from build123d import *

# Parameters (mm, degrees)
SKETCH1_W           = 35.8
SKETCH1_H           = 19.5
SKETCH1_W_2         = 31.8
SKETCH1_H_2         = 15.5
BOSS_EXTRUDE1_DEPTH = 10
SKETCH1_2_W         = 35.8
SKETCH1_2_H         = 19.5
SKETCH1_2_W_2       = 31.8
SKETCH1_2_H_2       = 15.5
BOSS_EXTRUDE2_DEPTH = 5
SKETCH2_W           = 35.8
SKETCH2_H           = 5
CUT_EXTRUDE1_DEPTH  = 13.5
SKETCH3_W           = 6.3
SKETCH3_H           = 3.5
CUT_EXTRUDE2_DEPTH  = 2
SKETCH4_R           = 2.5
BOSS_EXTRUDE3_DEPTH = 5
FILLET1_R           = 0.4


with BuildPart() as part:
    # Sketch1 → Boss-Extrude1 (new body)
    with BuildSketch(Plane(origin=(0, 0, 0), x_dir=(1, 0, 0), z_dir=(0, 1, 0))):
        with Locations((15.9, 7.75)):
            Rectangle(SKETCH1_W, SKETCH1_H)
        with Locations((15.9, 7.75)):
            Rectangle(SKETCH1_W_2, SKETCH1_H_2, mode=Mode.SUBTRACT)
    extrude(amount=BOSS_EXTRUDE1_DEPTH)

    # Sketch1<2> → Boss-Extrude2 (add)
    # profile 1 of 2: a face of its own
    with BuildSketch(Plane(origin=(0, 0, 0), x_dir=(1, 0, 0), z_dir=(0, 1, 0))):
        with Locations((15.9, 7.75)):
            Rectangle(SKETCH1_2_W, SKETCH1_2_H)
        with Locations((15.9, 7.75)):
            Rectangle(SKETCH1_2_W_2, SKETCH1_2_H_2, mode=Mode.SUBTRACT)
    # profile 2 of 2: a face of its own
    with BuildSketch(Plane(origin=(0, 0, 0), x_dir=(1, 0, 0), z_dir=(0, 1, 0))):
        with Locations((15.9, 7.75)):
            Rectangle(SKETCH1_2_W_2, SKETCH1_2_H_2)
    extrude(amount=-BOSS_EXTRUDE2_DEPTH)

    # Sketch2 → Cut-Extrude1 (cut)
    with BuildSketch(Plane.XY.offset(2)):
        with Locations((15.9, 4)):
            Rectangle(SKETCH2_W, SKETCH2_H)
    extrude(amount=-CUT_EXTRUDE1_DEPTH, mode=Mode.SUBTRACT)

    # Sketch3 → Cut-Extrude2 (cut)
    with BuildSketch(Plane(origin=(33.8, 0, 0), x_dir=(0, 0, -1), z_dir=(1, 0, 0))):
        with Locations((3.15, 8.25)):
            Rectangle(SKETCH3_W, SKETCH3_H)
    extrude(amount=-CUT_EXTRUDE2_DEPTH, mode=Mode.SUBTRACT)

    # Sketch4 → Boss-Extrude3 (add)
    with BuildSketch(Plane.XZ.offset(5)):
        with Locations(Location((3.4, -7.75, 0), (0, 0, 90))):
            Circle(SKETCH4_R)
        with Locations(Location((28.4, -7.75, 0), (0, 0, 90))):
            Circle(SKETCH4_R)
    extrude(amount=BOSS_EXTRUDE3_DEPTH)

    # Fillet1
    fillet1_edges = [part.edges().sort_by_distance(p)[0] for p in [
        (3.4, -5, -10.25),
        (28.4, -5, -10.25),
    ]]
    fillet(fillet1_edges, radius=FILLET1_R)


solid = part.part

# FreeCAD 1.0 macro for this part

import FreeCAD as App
import Part
import Sketcher

V = App.Vector


def edges_at(feature, points):
    """Names of the edges that pass closest to the given points."""
    edges = feature.Shape.Edges
    near = lambda p: min(range(len(edges)), key=lambda i: edges[i].distToShape(Part.Vertex(*p))[0])
    return sorted({f"Edge{near(p) + 1}" for p in points})

doc = App.newDocument("Part")
body = doc.addObject("PartDesign::Body", "Body")

# Sketch on XZ plane
sketch1 = body.newObject("Sketcher::SketchObject", "Sketch")
sketch1.AttachmentSupport = (doc.getObject("XZ_Plane"), [""])
sketch1.MapMode = "FlatFace"
sketch1.addGeometry(Part.LineSegment(V(-2, -17.5, 0), V(-2, 2, 0)), False)
sketch1.addGeometry(Part.LineSegment(V(-2, 2, 0), V(33.8, 2, 0)), False)
sketch1.addGeometry(Part.LineSegment(V(33.8, 2, 0), V(33.8, -17.5, 0)), False)
sketch1.addGeometry(Part.LineSegment(V(33.8, -17.5, 0), V(-2, -17.5, 0)), False)
sketch1.addGeometry(Part.LineSegment(V(31.8, 0, 0), V(0, 0, 0)), False)
sketch1.addGeometry(Part.LineSegment(V(0, 0, 0), V(0, -15.5, 0)), False)
sketch1.addGeometry(Part.LineSegment(V(0, -15.5, 0), V(31.8, -15.5, 0)), False)
sketch1.addGeometry(Part.LineSegment(V(31.8, -15.5, 0), V(31.8, 0, 0)), False)
sketch1.addConstraint(Sketcher.Constraint("Coincident", 0, 2, 1, 1))
sketch1.addConstraint(Sketcher.Constraint("Coincident", 1, 2, 2, 1))
sketch1.addConstraint(Sketcher.Constraint("Coincident", 2, 2, 3, 1))
sketch1.addConstraint(Sketcher.Constraint("Coincident", 3, 2, 0, 1))
sketch1.addConstraint(Sketcher.Constraint("Coincident", 4, 2, 5, 1))
sketch1.addConstraint(Sketcher.Constraint("Coincident", 5, 2, 6, 1))
sketch1.addConstraint(Sketcher.Constraint("Coincident", 6, 2, 7, 1))
sketch1.addConstraint(Sketcher.Constraint("Coincident", 7, 2, 4, 1))
sketch1.addConstraint(Sketcher.Constraint("Vertical", 0))
sketch1.addConstraint(Sketcher.Constraint("Horizontal", 1))
sketch1.addConstraint(Sketcher.Constraint("Vertical", 2))
sketch1.addConstraint(Sketcher.Constraint("Horizontal", 3))
sketch1.addConstraint(Sketcher.Constraint("Horizontal", 4))
sketch1.addConstraint(Sketcher.Constraint("Vertical", 5))
sketch1.addConstraint(Sketcher.Constraint("Horizontal", 6))
sketch1.addConstraint(Sketcher.Constraint("Vertical", 7))
sketch1.addConstraint(Sketcher.Constraint("Coincident", 4, 2, -1, 1))
sketch1.addConstraint(Sketcher.Constraint("DistanceX", 1, 1, 1, 2, 35.8))
sketch1.addConstraint(Sketcher.Constraint("DistanceX", 4, 2, 4, 1, 31.8))
sketch1.addConstraint(Sketcher.Constraint("DistanceY", 0, 1, 0, 2, 19.5))
sketch1.addConstraint(Sketcher.Constraint("DistanceY", 5, 2, 5, 1, 15.5))
sketch1.addConstraint(Sketcher.Constraint("DistanceX", 0, 2, -1, 1, 2.0))
sketch1.addConstraint(Sketcher.Constraint("DistanceY", -1, 1, 0, 2, 2.0))
pad1 = body.newObject("PartDesign::Pad", "Pad")
pad1.Profile = sketch1
pad1.Length = 10
pad1.Reversed = True

# Sketch on XZ plane
sketch2 = body.newObject("Sketcher::SketchObject", "Sketch001")
sketch2.AttachmentSupport = (doc.getObject("XZ_Plane"), [""])
sketch2.MapMode = "FlatFace"
sketch2.addGeometry(Part.LineSegment(V(-2, -17.5, 0), V(-2, 2, 0)), False)
sketch2.addGeometry(Part.LineSegment(V(-2, 2, 0), V(33.8, 2, 0)), False)
sketch2.addGeometry(Part.LineSegment(V(33.8, 2, 0), V(33.8, -17.5, 0)), False)
sketch2.addGeometry(Part.LineSegment(V(33.8, -17.5, 0), V(-2, -17.5, 0)), False)
sketch2.addConstraint(Sketcher.Constraint("Coincident", 0, 2, 1, 1))
sketch2.addConstraint(Sketcher.Constraint("Coincident", 1, 2, 2, 1))
sketch2.addConstraint(Sketcher.Constraint("Coincident", 2, 2, 3, 1))
sketch2.addConstraint(Sketcher.Constraint("Coincident", 3, 2, 0, 1))
sketch2.addConstraint(Sketcher.Constraint("Vertical", 0))
sketch2.addConstraint(Sketcher.Constraint("Horizontal", 1))
sketch2.addConstraint(Sketcher.Constraint("Vertical", 2))
sketch2.addConstraint(Sketcher.Constraint("Horizontal", 3))
sketch2.addConstraint(Sketcher.Constraint("DistanceX", 1, 1, 1, 2, 35.8))
sketch2.addConstraint(Sketcher.Constraint("DistanceY", 0, 1, 0, 2, 19.5))
sketch2.addConstraint(Sketcher.Constraint("DistanceX", 0, 2, -1, 1, 2.0))
sketch2.addConstraint(Sketcher.Constraint("DistanceY", -1, 1, 0, 2, 2.0))
pad2 = body.newObject("PartDesign::Pad", "Pad001")
pad2.Profile = sketch2
pad2.Length = 5

# Sketch on XY plane
sketch3 = body.newObject("Sketcher::SketchObject", "Sketch002")
sketch3.AttachmentSupport = (doc.getObject("XY_Plane"), [""])
sketch3.MapMode = "FlatFace"
sketch3.AttachmentOffset = App.Placement(V(0, 0, 2), App.Rotation())
sketch3.addGeometry(Part.LineSegment(V(-2, 6.5, 0), V(-2, 1.5, 0)), False)
sketch3.addGeometry(Part.LineSegment(V(-2, 1.5, 0), V(33.8, 1.5, 0)), False)
sketch3.addGeometry(Part.LineSegment(V(33.8, 1.5, 0), V(33.8, 6.5, 0)), False)
sketch3.addGeometry(Part.LineSegment(V(33.8, 6.5, 0), V(-2, 6.5, 0)), False)
sketch3.addConstraint(Sketcher.Constraint("Coincident", 0, 2, 1, 1))
sketch3.addConstraint(Sketcher.Constraint("Coincident", 1, 2, 2, 1))
sketch3.addConstraint(Sketcher.Constraint("Coincident", 2, 2, 3, 1))
sketch3.addConstraint(Sketcher.Constraint("Coincident", 3, 2, 0, 1))
sketch3.addConstraint(Sketcher.Constraint("Vertical", 0))
sketch3.addConstraint(Sketcher.Constraint("Horizontal", 1))
sketch3.addConstraint(Sketcher.Constraint("Vertical", 2))
sketch3.addConstraint(Sketcher.Constraint("Horizontal", 3))
sketch3.addConstraint(Sketcher.Constraint("DistanceY", 0, 2, 0, 1, 5.0))
sketch3.addConstraint(Sketcher.Constraint("DistanceX", 1, 1, 1, 2, 35.8))
sketch3.addConstraint(Sketcher.Constraint("DistanceX", 0, 2, -1, 1, 2.0))
sketch3.addConstraint(Sketcher.Constraint("DistanceY", -1, 1, 0, 2, 1.5))
pocket1 = body.newObject("PartDesign::Pocket", "Pocket")
pocket1.Profile = sketch3
pocket1.Length = 13.5

# Sketch on YZ plane
sketch4 = body.newObject("Sketcher::SketchObject", "Sketch003")
sketch4.AttachmentSupport = (doc.getObject("YZ_Plane"), [""])
sketch4.MapMode = "FlatFace"
sketch4.AttachmentOffset = App.Placement(V(0, 0, 33.8), App.Rotation())
sketch4.addGeometry(Part.LineSegment(V(10, 0, 0), V(6.5, 0, 0)), False)
sketch4.addGeometry(Part.LineSegment(V(6.5, 0, 0), V(6.5, -6.3, 0)), False)
sketch4.addGeometry(Part.LineSegment(V(6.5, -6.3, 0), V(10, -6.3, 0)), False)
sketch4.addGeometry(Part.LineSegment(V(10, -6.3, 0), V(10, 0, 0)), False)
sketch4.addConstraint(Sketcher.Constraint("Coincident", 0, 2, 1, 1))
sketch4.addConstraint(Sketcher.Constraint("Coincident", 1, 2, 2, 1))
sketch4.addConstraint(Sketcher.Constraint("Coincident", 2, 2, 3, 1))
sketch4.addConstraint(Sketcher.Constraint("Coincident", 3, 2, 0, 1))
sketch4.addConstraint(Sketcher.Constraint("Horizontal", 0))
sketch4.addConstraint(Sketcher.Constraint("Vertical", 1))
sketch4.addConstraint(Sketcher.Constraint("Horizontal", 2))
sketch4.addConstraint(Sketcher.Constraint("Vertical", 3))
sketch4.addConstraint(Sketcher.Constraint("PointOnObject", 0, 2, -1))
sketch4.addConstraint(Sketcher.Constraint("DistanceX", 0, 2, 0, 1, 3.5))
sketch4.addConstraint(Sketcher.Constraint("DistanceY", 1, 2, 1, 1, 6.3))
sketch4.addConstraint(Sketcher.Constraint("DistanceX", -1, 1, 2, 2, 10.0))
pocket2 = body.newObject("PartDesign::Pocket", "Pocket001")
pocket2.Profile = sketch4
pocket2.Length = 2

# Sketch on XZ plane
sketch5 = body.newObject("Sketcher::SketchObject", "Sketch004")
sketch5.AttachmentSupport = (doc.getObject("XZ_Plane"), [""])
sketch5.MapMode = "FlatFace"
sketch5.AttachmentOffset = App.Placement(V(0, 0, 5), App.Rotation())
sketch5.addGeometry(Part.Circle(V(3.4, -7.75, 0), V(0, 0, 1), 2.5), False)
sketch5.addGeometry(Part.Circle(V(28.4, -7.75, 0), V(0, 0, 1), 2.5), False)
sketch5.addConstraint(Sketcher.Constraint("Equal", 0, 1))
sketch5.addConstraint(Sketcher.Constraint("Horizontal", 0, 3, 1, 3))
sketch5.addConstraint(Sketcher.Constraint("Diameter", 0, 5.0))
sketch5.addConstraint(Sketcher.Constraint("DistanceX", 0, 3, 1, 3, 25.0))
sketch5.addConstraint(Sketcher.Constraint("DistanceX", -1, 1, 0, 3, 3.4))
sketch5.addConstraint(Sketcher.Constraint("DistanceY", 0, 3, -1, 1, 7.75))
pad3 = body.newObject("PartDesign::Pad", "Pad002")
pad3.Profile = sketch5
pad3.Length = 5
doc.recompute()

fillet = body.newObject("PartDesign::Fillet", "Fillet")
fillet.Base = (pad3, edges_at(pad3, [(3.4, -5, -10.25), (28.4, -5, -10.25)]))
fillet.Radius = 0.4

doc.recompute()
